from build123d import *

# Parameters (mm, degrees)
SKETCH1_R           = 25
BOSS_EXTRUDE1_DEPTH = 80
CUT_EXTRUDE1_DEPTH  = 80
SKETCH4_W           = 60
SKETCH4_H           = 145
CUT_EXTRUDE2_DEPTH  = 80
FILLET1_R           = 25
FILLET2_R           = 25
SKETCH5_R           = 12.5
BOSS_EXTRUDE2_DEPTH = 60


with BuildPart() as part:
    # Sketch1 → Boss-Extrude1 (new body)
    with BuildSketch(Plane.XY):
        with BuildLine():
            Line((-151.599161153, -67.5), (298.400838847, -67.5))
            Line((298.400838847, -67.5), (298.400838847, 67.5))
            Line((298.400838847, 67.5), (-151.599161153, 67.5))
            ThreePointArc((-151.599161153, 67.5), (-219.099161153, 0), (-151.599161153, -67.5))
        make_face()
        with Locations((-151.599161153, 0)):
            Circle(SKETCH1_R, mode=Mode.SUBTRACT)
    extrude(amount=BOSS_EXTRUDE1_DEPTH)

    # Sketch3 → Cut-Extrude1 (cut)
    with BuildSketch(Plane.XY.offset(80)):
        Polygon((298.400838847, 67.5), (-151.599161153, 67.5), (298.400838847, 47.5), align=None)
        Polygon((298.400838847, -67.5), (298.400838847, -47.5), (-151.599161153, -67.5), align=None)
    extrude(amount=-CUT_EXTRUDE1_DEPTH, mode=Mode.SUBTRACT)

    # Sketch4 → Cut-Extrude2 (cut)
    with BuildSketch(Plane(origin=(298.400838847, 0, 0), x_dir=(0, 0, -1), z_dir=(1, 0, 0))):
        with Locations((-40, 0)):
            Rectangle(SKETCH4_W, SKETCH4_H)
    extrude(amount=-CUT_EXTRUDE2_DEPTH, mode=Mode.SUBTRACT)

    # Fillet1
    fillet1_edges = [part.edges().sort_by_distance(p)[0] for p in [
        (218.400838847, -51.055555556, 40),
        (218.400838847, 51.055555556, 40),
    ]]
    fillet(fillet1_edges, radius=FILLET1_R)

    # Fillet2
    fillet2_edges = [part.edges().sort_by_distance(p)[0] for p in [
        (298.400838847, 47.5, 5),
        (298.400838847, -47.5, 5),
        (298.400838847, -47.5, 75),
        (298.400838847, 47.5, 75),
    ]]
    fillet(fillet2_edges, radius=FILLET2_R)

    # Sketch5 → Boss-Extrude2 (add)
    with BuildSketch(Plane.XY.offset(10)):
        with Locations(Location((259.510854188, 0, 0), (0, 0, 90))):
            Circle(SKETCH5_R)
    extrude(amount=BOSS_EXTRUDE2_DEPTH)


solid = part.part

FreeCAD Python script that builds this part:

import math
import FreeCAD as App
import Part
import Sketcher
from FreeCAD import Vector


def edges_at(feature, points):
    """Names of the edges that pass closest to the given points."""
    edges = feature.Shape.Edges
    near = lambda p: min(range(len(edges)), key=lambda i: edges[i].distToShape(Part.Vertex(*p))[0])
    return sorted({f"Edge{near(p) + 1}" for p in points})

doc = App.newDocument("Part")
body = doc.addObject("PartDesign::Body", "Body")

# Sketch on XY plane
sketch1 = body.newObject("Sketcher::SketchObject", "Sketch")
sketch1.AttachmentSupport = (doc.getObject("XY_Plane"), [""])
sketch1.MapMode = "FlatFace"
sketch1.addGeometry(Part.LineSegment(Vector(-152, -68, 0), Vector(298, -68, 0)), False)
sketch1.addGeometry(Part.LineSegment(Vector(298, -68, 0), Vector(298, 68, 0)), False)
sketch1.addGeometry(Part.LineSegment(Vector(298, 68, 0), Vector(-152, 68, 0)), False)
sketch1.addGeometry(Part.ArcOfCircle(Part.Circle(Vector(-152, 0, 0), Vector(0, 0, 1), 68), math.radians(90), math.radians(270)), False)
sketch1.addGeometry(Part.Circle(Vector(-152, 0, 0), Vector(0, 0, 1), 25), False)
sketch1.addConstraint(Sketcher.Constraint("Coincident", 0, 2, 1, 1))
sketch1.addConstraint(Sketcher.Constraint("Coincident", 1, 2, 2, 1))
sketch1.addConstraint(Sketcher.Constraint("Tangent", 2, 2, 3, 1))
sketch1.addConstraint(Sketcher.Constraint("Tangent", 3, 2, 0, 1))
sketch1.addConstraint(Sketcher.Constraint("Horizontal", 0))
sketch1.addConstraint(Sketcher.Constraint("Vertical", 1))
sketch1.addConstraint(Sketcher.Constraint("Horizontal", 2))
sketch1.addConstraint(Sketcher.Constraint("Coincident", 4, 3, 3, 3))
sketch1.addConstraint(Sketcher.Constraint("PointOnObject", 3, 3, -1))
sketch1.addConstraint(Sketcher.Constraint("Diameter", 4, 50.0))
sketch1.addConstraint(Sketcher.Constraint("Radius", 3, 67.5))
sketch1.addConstraint(Sketcher.Constraint("DistanceX", 0, 1, 0, 2, 450.0))
sketch1.addConstraint(Sketcher.Constraint("DistanceX", 3, 3, -1, 1, 151.599161))
pad1 = body.newObject("PartDesign::Pad", "Pad")
pad1.Profile = sketch1
pad1.Length = 80

# Sketch on XY plane
sketch2 = body.newObject("Sketcher::SketchObject", "Sketch001")
sketch2.AttachmentSupport = (doc.getObject("XY_Plane"), [""])
sketch2.MapMode = "FlatFace"
sketch2.AttachmentOffset = App.Placement(Vector(0, 0, 80), App.Rotation())
sketch2.addGeometry(Part.LineSegment(Vector(298, 68, 0), Vector(-152, 68, 0)), False)
sketch2.addGeometry(Part.LineSegment(Vector(-152, 68, 0), Vector(298, 48, 0)), False)
sketch2.addGeometry(Part.LineSegment(Vector(298, 48, 0), Vector(298, 68, 0)), False)
sketch2.addGeometry(Part.LineSegment(Vector(298, -68, 0), Vector(298, -48, 0)), False)
sketch2.addGeometry(Part.LineSegment(Vector(298, -48, 0), Vector(-152, -68, 0)), False)
sketch2.addGeometry(Part.LineSegment(Vector(-152, -68, 0), Vector(298, -68, 0)), False)
sketch2.addConstraint(Sketcher.Constraint("Coincident", 0, 2, 1, 1))
sketch2.addConstraint(Sketcher.Constraint("Coincident", 1, 2, 2, 1))
sketch2.addConstraint(Sketcher.Constraint("Coincident", 2, 2, 0, 1))
sketch2.addConstraint(Sketcher.Constraint("Coincident", 3, 2, 4, 1))
sketch2.addConstraint(Sketcher.Constraint("Coincident", 4, 2, 5, 1))
sketch2.addConstraint(Sketcher.Constraint("Coincident", 5, 2, 3, 1))
sketch2.addConstraint(Sketcher.Constraint("Horizontal", 0))
sketch2.addConstraint(Sketcher.Constraint("Vertical", 2))
sketch2.addConstraint(Sketcher.Constraint("Vertical", 3))
sketch2.addConstraint(Sketcher.Constraint("Horizontal", 5))
sketch2.addConstraint(Sketcher.Constraint("Symmetric", 1, 2, 3, 2, -1))
sketch2.addConstraint(Sketcher.Constraint("Symmetric", 0, 2, 4, 2, -1))
sketch2.addConstraint(Sketcher.Constraint("DistanceX", 0, 2, 0, 1, 450.0))
sketch2.addConstraint(Sketcher.Constraint("DistanceY", 2, 1, 2, 2, 20.0))
sketch2.addConstraint(Sketcher.Constraint("DistanceY", 3, 2, 1, 2, 95.0))
sketch2.addConstraint(Sketcher.Constraint("DistanceX", 0, 2, -1, 1, 151.599161))
pocket1 = body.newObject("PartDesign::Pocket", "Pocket")
pocket1.Profile = sketch2
pocket1.Length = 80

# Sketch on YZ plane
sketch3 = body.newObject("Sketcher::SketchObject", "Sketch002")
sketch3.AttachmentSupport = (doc.getObject("YZ_Plane"), [""])
sketch3.MapMode = "FlatFace"
sketch3.AttachmentOffset = App.Placement(Vector(0, 0, 298.400839), App.Rotation())
sketch3.addGeometry(Part.LineSegment(Vector(72, 70, 0), Vector(-72, 70, 0)), False)
sketch3.addGeometry(Part.LineSegment(Vector(-72, 70, 0), Vector(-72, 10, 0)), False)
sketch3.addGeometry(Part.LineSegment(Vector(-72, 10, 0), Vector(72, 10, 0)), False)
sketch3.addGeometry(Part.LineSegment(Vector(72, 10, 0), Vector(72, 70, 0)), False)
sketch3.addConstraint(Sketcher.Constraint("Coincident", 0, 2, 1, 1))
sketch3.addConstraint(Sketcher.Constraint("Coincident", 1, 2, 2, 1))
sketch3.addConstraint(Sketcher.Constraint("Coincident", 2, 2, 3, 1))
sketch3.addConstraint(Sketcher.Constraint("Coincident", 3, 2, 0, 1))
sketch3.addConstraint(Sketcher.Constraint("Horizontal", 0))
sketch3.addConstraint(Sketcher.Constraint("Vertical", 1))
sketch3.addConstraint(Sketcher.Constraint("Horizontal", 2))
sketch3.addConstraint(Sketcher.Constraint("Vertical", 3))
sketch3.addConstraint(Sketcher.Constraint("DistanceX", 0, 2, 0, 1, 145.0))
sketch3.addConstraint(Sketcher.Constraint("DistanceY", 1, 2, 1, 1, 60.0))
sketch3.addConstraint(Sketcher.Constraint("DistanceY", -1, 1, 0, 2, 70.0))
sketch3.addConstraint(Sketcher.Constraint("DistanceX", 0, 2, -1, 1, 72.5))
pocket2 = body.newObject("PartDesign::Pocket", "Pocket001")
pocket2.Profile = sketch3
pocket2.Length = 80
doc.recompute()

fillet = body.newObject("PartDesign::Fillet", "Fillet")
fillet.Base = (pocket2, edges_at(pocket2, [(218.401, -51.056, 40), (218.401, 51.056, 40)]))
fillet.Radius = 25
doc.recompute()

fillet2 = body.newObject("PartDesign::Fillet", "Fillet001")
fillet2.Base = (fillet, edges_at(fillet, [
    (298.401, 47.5, 5),
    (298.401, -47.5, 5),
    (298.401, -47.5, 75),
    (298.401, 47.5, 75),
]))
fillet2.Radius = 25

# Sketch on XY plane
sketch4 = body.newObject("Sketcher::SketchObject", "Sketch003")
sketch4.AttachmentSupport = (doc.getObject("XY_Plane"), [""])
sketch4.MapMode = "FlatFace"
sketch4.AttachmentOffset = App.Placement(Vector(0, 0, 10), App.Rotation())
sketch4.addGeometry(Part.Circle(Vector(260, 0, 0), Vector(0, 0, 1), 12), False)
sketch4.addConstraint(Sketcher.Constraint("PointOnObject", 0, 3, -1))
sketch4.addConstraint(Sketcher.Constraint("Diameter", 0, 25.0))
sketch4.addConstraint(Sketcher.Constraint("DistanceX", -1, 1, 0, 3, 259.510854))
pad2 = body.newObject("PartDesign::Pad", "Pad001")
pad2.Profile = sketch4
pad2.Length = 60

doc.recompute()
